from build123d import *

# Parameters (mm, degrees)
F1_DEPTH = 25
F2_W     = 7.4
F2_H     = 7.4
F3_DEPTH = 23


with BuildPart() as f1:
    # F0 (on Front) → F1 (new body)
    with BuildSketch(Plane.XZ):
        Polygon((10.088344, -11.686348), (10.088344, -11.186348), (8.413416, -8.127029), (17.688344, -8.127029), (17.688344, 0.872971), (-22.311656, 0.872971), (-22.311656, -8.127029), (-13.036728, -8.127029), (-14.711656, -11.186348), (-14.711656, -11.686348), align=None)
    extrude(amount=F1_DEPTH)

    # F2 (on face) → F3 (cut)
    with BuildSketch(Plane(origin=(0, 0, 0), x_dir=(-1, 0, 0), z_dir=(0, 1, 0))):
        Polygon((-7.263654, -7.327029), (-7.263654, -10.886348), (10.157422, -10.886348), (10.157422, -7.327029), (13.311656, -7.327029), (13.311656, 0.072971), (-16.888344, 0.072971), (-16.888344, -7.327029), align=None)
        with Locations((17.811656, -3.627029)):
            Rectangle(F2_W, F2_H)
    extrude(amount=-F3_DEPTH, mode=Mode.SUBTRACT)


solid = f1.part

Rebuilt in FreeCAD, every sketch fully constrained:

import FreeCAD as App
import Part
import Sketcher
Q = App.Units.Quantity

doc = App.newDocument("Part")
body = doc.addObject("PartDesign::Body", "Body")

# Sketch on XZ plane
sketch1 = body.newObject("Sketcher::SketchObject", "Sketch")
sketch1.AttachmentSupport = (doc.getObject("XZ_Plane"), [""])
sketch1.MapMode = "FlatFace"
sketch1.addGeometry([
    Part.LineSegment(App.Vector(10.1, -11.7, 0), App.Vector(10.1, -11.2, 0)),  # 0
    Part.LineSegment(App.Vector(10.1, -11.2, 0), App.Vector(8.4, -8.1, 0)),  # 1
    Part.LineSegment(App.Vector(8.4, -8.1, 0), App.Vector(17.7, -8.1, 0)),  # 2
    Part.LineSegment(App.Vector(17.7, -8.1, 0), App.Vector(17.7, 0.9, 0)),  # 3
    Part.LineSegment(App.Vector(17.7, 0.9, 0), App.Vector(-22.3, 0.9, 0)),  # 4
    Part.LineSegment(App.Vector(-22.3, 0.9, 0), App.Vector(-22.3, -8.1, 0)),  # 5
    Part.LineSegment(App.Vector(-22.3, -8.1, 0), App.Vector(-13, -8.1, 0)),  # 6
    Part.LineSegment(App.Vector(-13, -8.1, 0), App.Vector(-14.7, -11.2, 0)),  # 7
    Part.LineSegment(App.Vector(-14.7, -11.2, 0), App.Vector(-14.7, -11.7, 0)),  # 8
    Part.LineSegment(App.Vector(-14.7, -11.7, 0), App.Vector(10.1, -11.7, 0)),  # 9
], False)
sketch1.addConstraint([
    Sketcher.Constraint("Coincident", 0, 2, 1, 1),
    Sketcher.Constraint("Coincident", 1, 2, 2, 1),
    Sketcher.Constraint("Coincident", 2, 2, 3, 1),
    Sketcher.Constraint("Coincident", 3, 2, 4, 1),
    Sketcher.Constraint("Coincident", 4, 2, 5, 1),
    Sketcher.Constraint("Coincident", 5, 2, 6, 1),
    Sketcher.Constraint("Coincident", 6, 2, 7, 1),
    Sketcher.Constraint("Coincident", 7, 2, 8, 1),
    Sketcher.Constraint("Coincident", 8, 2, 9, 1),
    Sketcher.Constraint("Coincident", 9, 2, 0, 1),
    Sketcher.Constraint("Vertical", 0),
    Sketcher.Constraint("Horizontal", 2),
    Sketcher.Constraint("Vertical", 3),
    Sketcher.Constraint("Horizontal", 4),
    Sketcher.Constraint("Vertical", 5),
    Sketcher.Constraint("Horizontal", 6),
    Sketcher.Constraint("Vertical", 8),
    Sketcher.Constraint("Horizontal", 9),
    Sketcher.Constraint("Horizontal", 2, 2, 5, 2),
    Sketcher.Constraint("Horizontal", 0, 2, 7, 2),
    Sketcher.Constraint("Equal", 2, 6),
    Sketcher.Constraint("Equal", 1, 7),
    Sketcher.Constraint("DistanceX", 4, 2, 4, 1, 40.0),
    Sketcher.Constraint("DistanceY", 3, 1, 3, 2, 9.0),
    Sketcher.Constraint("DistanceX", 9, 1, 9, 2, 24.8),
    Sketcher.Constraint("DistanceY", 0, 1, 0, 2, 0.5),
    Sketcher.Constraint("Angle", 1, Q("118.699997 deg")),
    Sketcher.Constraint("DistanceX", 2, 1, 2, 2, 9.274928),
    Sketcher.Constraint("DistanceY", 0, 2, -1, 1, 11.186348),
    Sketcher.Constraint("DistanceX", -1, 1, 0, 2, 10.088344),
])
pad1 = body.newObject("PartDesign::Pad", "Pad")
pad1.Profile = sketch1
pad1.Length = 25

# Sketch on XZ plane
sketch2 = body.newObject("Sketcher::SketchObject", "Sketch001")
sketch2.AttachmentSupport = (doc.getObject("XZ_Plane"), [""])
sketch2.MapMode = "FlatFace"
sketch2.addGeometry([
    Part.LineSegment(App.Vector(7.3, -7.3, 0), App.Vector(7.3, -10.9, 0)),  # 0
    Part.LineSegment(App.Vector(7.3, -10.9, 0), App.Vector(-10.2, -10.9, 0)),  # 1
    Part.LineSegment(App.Vector(-10.2, -10.9, 0), App.Vector(-10.2, -7.3, 0)),  # 2
    Part.LineSegment(App.Vector(-10.2, -7.3, 0), App.Vector(-13.3, -7.3, 0)),  # 3
    Part.LineSegment(App.Vector(-13.3, -7.3, 0), App.Vector(-13.3, 0.1, 0)),  # 4
    Part.LineSegment(App.Vector(-13.3, 0.1, 0), App.Vector(16.9, 0.1, 0)),  # 5
    Part.LineSegment(App.Vector(16.9, 0.1, 0), App.Vector(16.9, -7.3, 0)),  # 6
    Part.LineSegment(App.Vector(16.9, -7.3, 0), App.Vector(7.3, -7.3, 0)),  # 7
    Part.LineSegment(App.Vector(-14.1, 0.1, 0), App.Vector(-14.1, -7.3, 0)),  # 8
    Part.LineSegment(App.Vector(-14.1, -7.3, 0), App.Vector(-21.5, -7.3, 0)),  # 9
    Part.LineSegment(App.Vector(-21.5, -7.3, 0), App.Vector(-21.5, 0.1, 0)),  # 10
    Part.LineSegment(App.Vector(-21.5, 0.1, 0), App.Vector(-14.1, 0.1, 0)),  # 11
], False)
sketch2.addConstraint([
    Sketcher.Constraint("Coincident", 0, 2, 1, 1),
    Sketcher.Constraint("Coincident", 1, 2, 2, 1),
    Sketcher.Constraint("Coincident", 2, 2, 3, 1),
    Sketcher.Constraint("Coincident", 3, 2, 4, 1),
    Sketcher.Constraint("Coincident", 4, 2, 5, 1),
    Sketcher.Constraint("Coincident", 5, 2, 6, 1),
    Sketcher.Constraint("Coincident", 6, 2, 7, 1),
    Sketcher.Constraint("Coincident", 7, 2, 0, 1),
    Sketcher.Constraint("Coincident", 8, 2, 9, 1),
    Sketcher.Constraint("Coincident", 9, 2, 10, 1),
    Sketcher.Constraint("Coincident", 10, 2, 11, 1),
    Sketcher.Constraint("Coincident", 11, 2, 8, 1),
    Sketcher.Constraint("Vertical", 0),
    Sketcher.Constraint("Horizontal", 1),
    Sketcher.Constraint("Vertical", 2),
    Sketcher.Constraint("Horizontal", 3),
    Sketcher.Constraint("Vertical", 4),
    Sketcher.Constraint("Horizontal", 5),
    Sketcher.Constraint("Vertical", 6),
    Sketcher.Constraint("Horizontal", 7),
    Sketcher.Constraint("Vertical", 8),
    Sketcher.Constraint("Horizontal", 9),
    Sketcher.Constraint("Vertical", 10),
    Sketcher.Constraint("Horizontal", 11),
    Sketcher.Constraint("Horizontal", 3, 2, 6, 2),
    Sketcher.Constraint("Horizontal", 7, 2, 8, 2),
    Sketcher.Constraint("Horizontal", 5, 2, 10, 2),
    Sketcher.Constraint("Equal", 11, 4),
    Sketcher.Constraint("DistanceX", 5, 1, 5, 2, 30.2),
    Sketcher.Constraint("DistanceX", 9, 2, 9, 1, 7.4),
    Sketcher.Constraint("DistanceX", 8, 2, 3, 2, 0.8),
    Sketcher.Constraint("DistanceX", 7, 2, 7, 1, 9.62469),
    Sketcher.Constraint("DistanceY", 0, 2, 0, 1, 3.559319),
    Sketcher.Constraint("DistanceX", 1, 2, 1, 1, 17.421076),
    Sketcher.Constraint("DistanceY", 2, 2, -1, 1, 7.327029),
    Sketcher.Constraint("DistanceX", -1, 1, 0, 2, 7.263654),
])
pocket1 = body.newObject("PartDesign::Pocket", "Pocket")
pocket1.Profile = sketch2
pocket1.Length = 23
pocket1.Reversed = True

doc.recompute()
